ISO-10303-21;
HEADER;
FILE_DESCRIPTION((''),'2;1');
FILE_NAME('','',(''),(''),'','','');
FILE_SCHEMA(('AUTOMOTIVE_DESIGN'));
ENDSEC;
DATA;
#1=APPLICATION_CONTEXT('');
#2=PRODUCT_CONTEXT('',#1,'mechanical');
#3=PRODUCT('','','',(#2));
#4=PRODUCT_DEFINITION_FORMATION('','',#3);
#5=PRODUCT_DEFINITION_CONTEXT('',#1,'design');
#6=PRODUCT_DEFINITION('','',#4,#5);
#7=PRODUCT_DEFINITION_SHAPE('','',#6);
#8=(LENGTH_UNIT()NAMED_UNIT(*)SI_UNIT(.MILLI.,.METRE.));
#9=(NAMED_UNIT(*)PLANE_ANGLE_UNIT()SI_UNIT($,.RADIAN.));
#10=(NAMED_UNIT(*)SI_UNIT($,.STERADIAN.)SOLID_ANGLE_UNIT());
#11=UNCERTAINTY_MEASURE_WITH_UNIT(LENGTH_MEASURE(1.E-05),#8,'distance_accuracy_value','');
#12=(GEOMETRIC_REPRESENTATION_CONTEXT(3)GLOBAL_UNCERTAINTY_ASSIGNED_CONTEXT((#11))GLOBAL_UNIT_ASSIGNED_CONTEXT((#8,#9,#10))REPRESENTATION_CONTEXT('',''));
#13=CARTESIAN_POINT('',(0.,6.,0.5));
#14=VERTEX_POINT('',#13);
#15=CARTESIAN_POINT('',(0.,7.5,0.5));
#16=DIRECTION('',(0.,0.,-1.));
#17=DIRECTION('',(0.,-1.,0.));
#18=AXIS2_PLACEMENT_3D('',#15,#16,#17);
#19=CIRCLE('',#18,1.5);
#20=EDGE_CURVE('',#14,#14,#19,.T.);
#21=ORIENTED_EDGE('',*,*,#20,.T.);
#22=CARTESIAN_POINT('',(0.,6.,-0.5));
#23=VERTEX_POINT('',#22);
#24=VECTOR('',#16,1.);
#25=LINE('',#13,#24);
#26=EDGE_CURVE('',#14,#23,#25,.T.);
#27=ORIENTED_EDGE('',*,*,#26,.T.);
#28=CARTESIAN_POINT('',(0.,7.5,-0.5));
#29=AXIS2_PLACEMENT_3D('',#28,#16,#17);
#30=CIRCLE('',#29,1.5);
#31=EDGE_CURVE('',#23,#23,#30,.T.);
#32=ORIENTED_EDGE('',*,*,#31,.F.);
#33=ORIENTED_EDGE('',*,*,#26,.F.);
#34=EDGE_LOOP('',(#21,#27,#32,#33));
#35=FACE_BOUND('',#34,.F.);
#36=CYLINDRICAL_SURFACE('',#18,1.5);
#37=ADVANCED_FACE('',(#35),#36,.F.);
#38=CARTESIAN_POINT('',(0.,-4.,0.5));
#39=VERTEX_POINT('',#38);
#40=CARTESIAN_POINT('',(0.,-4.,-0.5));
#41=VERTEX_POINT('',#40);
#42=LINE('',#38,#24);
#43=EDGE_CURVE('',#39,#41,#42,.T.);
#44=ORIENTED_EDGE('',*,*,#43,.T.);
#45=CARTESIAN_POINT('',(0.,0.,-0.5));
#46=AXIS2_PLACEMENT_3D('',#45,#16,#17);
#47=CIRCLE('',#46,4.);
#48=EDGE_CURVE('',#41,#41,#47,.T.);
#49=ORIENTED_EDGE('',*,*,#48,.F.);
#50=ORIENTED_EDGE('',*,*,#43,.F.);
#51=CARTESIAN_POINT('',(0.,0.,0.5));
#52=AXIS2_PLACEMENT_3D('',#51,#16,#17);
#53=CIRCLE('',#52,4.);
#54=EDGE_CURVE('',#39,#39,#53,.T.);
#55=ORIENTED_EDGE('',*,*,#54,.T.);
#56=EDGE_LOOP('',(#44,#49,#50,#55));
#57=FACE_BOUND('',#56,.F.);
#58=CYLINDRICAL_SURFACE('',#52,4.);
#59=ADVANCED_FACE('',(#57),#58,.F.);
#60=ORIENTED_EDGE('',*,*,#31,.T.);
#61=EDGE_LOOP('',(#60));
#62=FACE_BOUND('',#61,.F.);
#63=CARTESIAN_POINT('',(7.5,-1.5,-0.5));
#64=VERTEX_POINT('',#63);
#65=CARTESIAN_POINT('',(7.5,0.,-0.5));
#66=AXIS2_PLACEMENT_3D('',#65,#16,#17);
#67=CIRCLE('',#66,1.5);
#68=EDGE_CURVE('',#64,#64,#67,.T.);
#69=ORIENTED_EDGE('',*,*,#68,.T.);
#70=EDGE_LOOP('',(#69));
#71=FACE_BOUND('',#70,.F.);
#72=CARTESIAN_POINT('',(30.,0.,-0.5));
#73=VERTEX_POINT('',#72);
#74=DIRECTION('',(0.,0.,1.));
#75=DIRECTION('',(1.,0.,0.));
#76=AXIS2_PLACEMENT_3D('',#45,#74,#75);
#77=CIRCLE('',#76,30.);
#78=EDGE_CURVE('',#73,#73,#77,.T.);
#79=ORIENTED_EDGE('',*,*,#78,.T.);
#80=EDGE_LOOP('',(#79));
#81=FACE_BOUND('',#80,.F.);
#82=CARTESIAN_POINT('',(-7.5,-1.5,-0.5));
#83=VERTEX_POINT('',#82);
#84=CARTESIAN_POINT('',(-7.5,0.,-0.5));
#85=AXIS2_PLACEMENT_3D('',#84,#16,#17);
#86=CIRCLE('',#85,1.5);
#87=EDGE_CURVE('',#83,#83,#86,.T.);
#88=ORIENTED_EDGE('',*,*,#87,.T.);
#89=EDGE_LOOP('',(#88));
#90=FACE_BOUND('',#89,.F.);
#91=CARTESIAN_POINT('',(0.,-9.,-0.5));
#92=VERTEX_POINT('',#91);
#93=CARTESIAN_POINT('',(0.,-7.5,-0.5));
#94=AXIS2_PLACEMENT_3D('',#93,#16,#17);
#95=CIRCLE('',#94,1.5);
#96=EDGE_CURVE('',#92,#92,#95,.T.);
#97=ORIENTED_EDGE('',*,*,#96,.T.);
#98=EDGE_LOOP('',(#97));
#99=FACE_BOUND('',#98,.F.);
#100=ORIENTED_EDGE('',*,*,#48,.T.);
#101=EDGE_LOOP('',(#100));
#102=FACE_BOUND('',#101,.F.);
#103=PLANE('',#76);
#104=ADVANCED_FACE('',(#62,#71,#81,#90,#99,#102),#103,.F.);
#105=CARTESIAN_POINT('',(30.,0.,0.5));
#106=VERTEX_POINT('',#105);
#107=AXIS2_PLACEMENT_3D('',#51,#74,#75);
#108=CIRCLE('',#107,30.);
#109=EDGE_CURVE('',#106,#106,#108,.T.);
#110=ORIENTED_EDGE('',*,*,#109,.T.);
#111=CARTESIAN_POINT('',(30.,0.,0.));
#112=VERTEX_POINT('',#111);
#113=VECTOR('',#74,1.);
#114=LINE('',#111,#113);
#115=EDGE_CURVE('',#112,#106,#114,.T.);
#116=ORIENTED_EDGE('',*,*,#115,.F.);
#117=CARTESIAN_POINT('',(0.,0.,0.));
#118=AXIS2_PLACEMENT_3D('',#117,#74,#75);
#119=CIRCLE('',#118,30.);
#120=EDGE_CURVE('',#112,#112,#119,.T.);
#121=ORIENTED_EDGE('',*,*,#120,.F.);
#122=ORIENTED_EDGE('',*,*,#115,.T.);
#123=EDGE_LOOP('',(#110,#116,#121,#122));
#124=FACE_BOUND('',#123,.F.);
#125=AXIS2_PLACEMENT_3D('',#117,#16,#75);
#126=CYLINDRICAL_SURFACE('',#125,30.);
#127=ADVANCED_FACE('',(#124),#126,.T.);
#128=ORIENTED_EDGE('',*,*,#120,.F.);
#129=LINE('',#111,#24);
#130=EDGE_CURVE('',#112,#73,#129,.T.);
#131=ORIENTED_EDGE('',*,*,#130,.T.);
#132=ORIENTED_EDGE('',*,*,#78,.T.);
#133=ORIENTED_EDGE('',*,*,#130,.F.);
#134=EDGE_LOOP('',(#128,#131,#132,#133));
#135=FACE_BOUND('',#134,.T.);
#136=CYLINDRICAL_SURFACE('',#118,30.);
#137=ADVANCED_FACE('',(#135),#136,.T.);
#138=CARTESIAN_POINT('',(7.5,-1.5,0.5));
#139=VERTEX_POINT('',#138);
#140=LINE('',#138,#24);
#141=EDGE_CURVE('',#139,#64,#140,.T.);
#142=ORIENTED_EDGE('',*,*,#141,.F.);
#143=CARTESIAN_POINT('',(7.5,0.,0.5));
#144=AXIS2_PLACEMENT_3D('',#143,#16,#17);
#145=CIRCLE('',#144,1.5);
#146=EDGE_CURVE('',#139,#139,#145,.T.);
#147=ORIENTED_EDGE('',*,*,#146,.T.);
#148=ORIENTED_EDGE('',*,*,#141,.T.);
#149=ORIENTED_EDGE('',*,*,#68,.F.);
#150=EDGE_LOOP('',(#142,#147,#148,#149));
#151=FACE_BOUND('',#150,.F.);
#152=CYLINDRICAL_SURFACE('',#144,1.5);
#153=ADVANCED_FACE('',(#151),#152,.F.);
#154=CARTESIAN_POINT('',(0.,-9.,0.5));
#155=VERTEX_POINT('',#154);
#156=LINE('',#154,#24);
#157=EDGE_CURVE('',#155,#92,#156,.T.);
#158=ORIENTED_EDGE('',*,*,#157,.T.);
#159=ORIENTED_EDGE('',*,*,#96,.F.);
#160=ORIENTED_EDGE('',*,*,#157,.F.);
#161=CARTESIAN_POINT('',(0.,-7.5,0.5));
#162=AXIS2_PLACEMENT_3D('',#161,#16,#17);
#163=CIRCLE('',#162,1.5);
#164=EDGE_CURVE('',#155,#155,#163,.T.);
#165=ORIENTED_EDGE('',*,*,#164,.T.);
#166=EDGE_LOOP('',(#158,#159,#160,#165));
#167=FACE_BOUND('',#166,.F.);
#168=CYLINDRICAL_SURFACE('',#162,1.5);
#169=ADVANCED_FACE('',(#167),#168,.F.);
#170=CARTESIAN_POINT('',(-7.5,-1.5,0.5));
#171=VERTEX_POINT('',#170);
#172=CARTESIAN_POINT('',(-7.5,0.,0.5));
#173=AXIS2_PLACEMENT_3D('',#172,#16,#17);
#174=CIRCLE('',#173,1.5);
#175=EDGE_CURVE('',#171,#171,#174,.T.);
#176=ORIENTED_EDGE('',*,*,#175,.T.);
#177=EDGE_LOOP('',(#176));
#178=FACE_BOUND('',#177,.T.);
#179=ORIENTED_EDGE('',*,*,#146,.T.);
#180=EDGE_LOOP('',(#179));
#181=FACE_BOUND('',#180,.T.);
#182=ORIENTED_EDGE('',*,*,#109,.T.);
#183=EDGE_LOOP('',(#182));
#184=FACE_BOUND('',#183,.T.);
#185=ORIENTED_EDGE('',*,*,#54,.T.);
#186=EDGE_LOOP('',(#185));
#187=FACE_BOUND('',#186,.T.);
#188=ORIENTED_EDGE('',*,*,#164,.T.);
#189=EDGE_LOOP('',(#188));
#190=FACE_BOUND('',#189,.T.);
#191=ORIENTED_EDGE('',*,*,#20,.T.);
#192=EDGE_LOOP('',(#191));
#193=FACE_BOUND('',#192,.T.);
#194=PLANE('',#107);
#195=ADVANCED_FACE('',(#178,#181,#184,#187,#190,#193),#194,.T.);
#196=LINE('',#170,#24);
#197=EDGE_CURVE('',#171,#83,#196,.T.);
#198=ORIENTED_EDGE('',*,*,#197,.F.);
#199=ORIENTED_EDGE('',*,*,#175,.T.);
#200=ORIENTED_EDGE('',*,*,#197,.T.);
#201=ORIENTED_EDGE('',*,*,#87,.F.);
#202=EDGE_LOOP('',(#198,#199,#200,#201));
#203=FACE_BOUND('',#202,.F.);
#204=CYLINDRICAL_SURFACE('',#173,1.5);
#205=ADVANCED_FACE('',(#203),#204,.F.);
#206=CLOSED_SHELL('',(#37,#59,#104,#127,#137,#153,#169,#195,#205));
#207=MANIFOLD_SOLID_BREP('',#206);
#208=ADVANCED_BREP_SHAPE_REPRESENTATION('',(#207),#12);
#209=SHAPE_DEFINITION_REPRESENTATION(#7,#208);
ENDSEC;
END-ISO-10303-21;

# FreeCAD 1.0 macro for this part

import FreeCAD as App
import Part
import Sketcher
from FreeCAD import Vector

doc = App.newDocument("Part")
body = doc.addObject("PartDesign::Body", "Body")

# Sketch on XY plane
sketch1 = body.newObject("Sketcher::SketchObject", "Sketch")
sketch1.AttachmentSupport = (doc.getObject("XY_Plane"), [""])
sketch1.MapMode = "FlatFace"
sketch1.addGeometry(Part.Circle(Vector(0, 0, 0), Vector(0, 0, 1), 30), False)
sketch1.addConstraint([
    Sketcher.Constraint("Coincident", 0, 3, -1, 1),
    Sketcher.Constraint("Diameter", 0, 60.0),
])
pad1 = body.newObject("PartDesign::Pad", "Pad")
pad1.Profile = sketch1
pad1.Length = 1
pad1.Midplane = True

# Sketch on XY plane
sketch2 = body.newObject("Sketcher::SketchObject", "Sketch001")
sketch2.AttachmentSupport = (doc.getObject("XY_Plane"), [""])
sketch2.MapMode = "FlatFace"
sketch2.AttachmentOffset = App.Placement(Vector(0, 0, 0.5), App.Rotation())
sketch2.addGeometry(Part.Circle(Vector(0, 0, 0), Vector(0, 0, 1), 4), False)
sketch2.addConstraint([
    Sketcher.Constraint("Coincident", 0, 3, -1, 1),
    Sketcher.Constraint("Diameter", 0, 8.0),
])
doc.recompute()
hole = body.newObject("PartDesign::Hole", "Hole")
hole.Profile = sketch2
hole.ThreadType = "None"
hole.Diameter = 8
hole.DepthType = "ThroughAll"

# Sketch on XY plane
sketch3 = body.newObject("Sketcher::SketchObject", "Sketch002")
sketch3.AttachmentSupport = (doc.getObject("XY_Plane"), [""])
sketch3.MapMode = "FlatFace"
sketch3.AttachmentOffset = App.Placement(Vector(0, 0, 0.5), App.Rotation())
sketch3.addGeometry([
    Part.Circle(Vector(-7.5, 0, 0), Vector(0, 0, 1), 1.5),
    Part.Circle(Vector(0, 7.5, 0), Vector(0, 0, 1), 1.5),
    Part.Circle(Vector(7.5, 0, 0), Vector(0, 0, 1), 1.5),
    Part.Circle(Vector(0, -7.5, 0), Vector(0, 0, 1), 1.5),
], False)
sketch3.addConstraint([
    Sketcher.Constraint("Equal", 0, 1),
    Sketcher.Constraint("Equal", 1, 2),
    Sketcher.Constraint("Equal", 2, 3),
    Sketcher.Constraint("Symmetric", 0, 3, 2, 3, -1, 1),
    Sketcher.Constraint("Symmetric", 1, 3, 3, 3, -1, 1),
    Sketcher.Constraint("PointOnObject", 0, 3, -1),
    Sketcher.Constraint("PointOnObject", 1, 3, -2),
    Sketcher.Constraint("Diameter", 0, 3.0),
    Sketcher.Constraint("DistanceX", 0, 3, 2, 3, 15.0),
    Sketcher.Constraint("DistanceY", 3, 3, 1, 3, 15.0),
])
doc.recompute()
hole2 = body.newObject("PartDesign::Hole", "Hole001")
hole2.Profile = sketch3
hole2.ThreadType = "None"
hole2.Diameter = 3
hole2.DepthType = "ThroughAll"

doc.recompute()
